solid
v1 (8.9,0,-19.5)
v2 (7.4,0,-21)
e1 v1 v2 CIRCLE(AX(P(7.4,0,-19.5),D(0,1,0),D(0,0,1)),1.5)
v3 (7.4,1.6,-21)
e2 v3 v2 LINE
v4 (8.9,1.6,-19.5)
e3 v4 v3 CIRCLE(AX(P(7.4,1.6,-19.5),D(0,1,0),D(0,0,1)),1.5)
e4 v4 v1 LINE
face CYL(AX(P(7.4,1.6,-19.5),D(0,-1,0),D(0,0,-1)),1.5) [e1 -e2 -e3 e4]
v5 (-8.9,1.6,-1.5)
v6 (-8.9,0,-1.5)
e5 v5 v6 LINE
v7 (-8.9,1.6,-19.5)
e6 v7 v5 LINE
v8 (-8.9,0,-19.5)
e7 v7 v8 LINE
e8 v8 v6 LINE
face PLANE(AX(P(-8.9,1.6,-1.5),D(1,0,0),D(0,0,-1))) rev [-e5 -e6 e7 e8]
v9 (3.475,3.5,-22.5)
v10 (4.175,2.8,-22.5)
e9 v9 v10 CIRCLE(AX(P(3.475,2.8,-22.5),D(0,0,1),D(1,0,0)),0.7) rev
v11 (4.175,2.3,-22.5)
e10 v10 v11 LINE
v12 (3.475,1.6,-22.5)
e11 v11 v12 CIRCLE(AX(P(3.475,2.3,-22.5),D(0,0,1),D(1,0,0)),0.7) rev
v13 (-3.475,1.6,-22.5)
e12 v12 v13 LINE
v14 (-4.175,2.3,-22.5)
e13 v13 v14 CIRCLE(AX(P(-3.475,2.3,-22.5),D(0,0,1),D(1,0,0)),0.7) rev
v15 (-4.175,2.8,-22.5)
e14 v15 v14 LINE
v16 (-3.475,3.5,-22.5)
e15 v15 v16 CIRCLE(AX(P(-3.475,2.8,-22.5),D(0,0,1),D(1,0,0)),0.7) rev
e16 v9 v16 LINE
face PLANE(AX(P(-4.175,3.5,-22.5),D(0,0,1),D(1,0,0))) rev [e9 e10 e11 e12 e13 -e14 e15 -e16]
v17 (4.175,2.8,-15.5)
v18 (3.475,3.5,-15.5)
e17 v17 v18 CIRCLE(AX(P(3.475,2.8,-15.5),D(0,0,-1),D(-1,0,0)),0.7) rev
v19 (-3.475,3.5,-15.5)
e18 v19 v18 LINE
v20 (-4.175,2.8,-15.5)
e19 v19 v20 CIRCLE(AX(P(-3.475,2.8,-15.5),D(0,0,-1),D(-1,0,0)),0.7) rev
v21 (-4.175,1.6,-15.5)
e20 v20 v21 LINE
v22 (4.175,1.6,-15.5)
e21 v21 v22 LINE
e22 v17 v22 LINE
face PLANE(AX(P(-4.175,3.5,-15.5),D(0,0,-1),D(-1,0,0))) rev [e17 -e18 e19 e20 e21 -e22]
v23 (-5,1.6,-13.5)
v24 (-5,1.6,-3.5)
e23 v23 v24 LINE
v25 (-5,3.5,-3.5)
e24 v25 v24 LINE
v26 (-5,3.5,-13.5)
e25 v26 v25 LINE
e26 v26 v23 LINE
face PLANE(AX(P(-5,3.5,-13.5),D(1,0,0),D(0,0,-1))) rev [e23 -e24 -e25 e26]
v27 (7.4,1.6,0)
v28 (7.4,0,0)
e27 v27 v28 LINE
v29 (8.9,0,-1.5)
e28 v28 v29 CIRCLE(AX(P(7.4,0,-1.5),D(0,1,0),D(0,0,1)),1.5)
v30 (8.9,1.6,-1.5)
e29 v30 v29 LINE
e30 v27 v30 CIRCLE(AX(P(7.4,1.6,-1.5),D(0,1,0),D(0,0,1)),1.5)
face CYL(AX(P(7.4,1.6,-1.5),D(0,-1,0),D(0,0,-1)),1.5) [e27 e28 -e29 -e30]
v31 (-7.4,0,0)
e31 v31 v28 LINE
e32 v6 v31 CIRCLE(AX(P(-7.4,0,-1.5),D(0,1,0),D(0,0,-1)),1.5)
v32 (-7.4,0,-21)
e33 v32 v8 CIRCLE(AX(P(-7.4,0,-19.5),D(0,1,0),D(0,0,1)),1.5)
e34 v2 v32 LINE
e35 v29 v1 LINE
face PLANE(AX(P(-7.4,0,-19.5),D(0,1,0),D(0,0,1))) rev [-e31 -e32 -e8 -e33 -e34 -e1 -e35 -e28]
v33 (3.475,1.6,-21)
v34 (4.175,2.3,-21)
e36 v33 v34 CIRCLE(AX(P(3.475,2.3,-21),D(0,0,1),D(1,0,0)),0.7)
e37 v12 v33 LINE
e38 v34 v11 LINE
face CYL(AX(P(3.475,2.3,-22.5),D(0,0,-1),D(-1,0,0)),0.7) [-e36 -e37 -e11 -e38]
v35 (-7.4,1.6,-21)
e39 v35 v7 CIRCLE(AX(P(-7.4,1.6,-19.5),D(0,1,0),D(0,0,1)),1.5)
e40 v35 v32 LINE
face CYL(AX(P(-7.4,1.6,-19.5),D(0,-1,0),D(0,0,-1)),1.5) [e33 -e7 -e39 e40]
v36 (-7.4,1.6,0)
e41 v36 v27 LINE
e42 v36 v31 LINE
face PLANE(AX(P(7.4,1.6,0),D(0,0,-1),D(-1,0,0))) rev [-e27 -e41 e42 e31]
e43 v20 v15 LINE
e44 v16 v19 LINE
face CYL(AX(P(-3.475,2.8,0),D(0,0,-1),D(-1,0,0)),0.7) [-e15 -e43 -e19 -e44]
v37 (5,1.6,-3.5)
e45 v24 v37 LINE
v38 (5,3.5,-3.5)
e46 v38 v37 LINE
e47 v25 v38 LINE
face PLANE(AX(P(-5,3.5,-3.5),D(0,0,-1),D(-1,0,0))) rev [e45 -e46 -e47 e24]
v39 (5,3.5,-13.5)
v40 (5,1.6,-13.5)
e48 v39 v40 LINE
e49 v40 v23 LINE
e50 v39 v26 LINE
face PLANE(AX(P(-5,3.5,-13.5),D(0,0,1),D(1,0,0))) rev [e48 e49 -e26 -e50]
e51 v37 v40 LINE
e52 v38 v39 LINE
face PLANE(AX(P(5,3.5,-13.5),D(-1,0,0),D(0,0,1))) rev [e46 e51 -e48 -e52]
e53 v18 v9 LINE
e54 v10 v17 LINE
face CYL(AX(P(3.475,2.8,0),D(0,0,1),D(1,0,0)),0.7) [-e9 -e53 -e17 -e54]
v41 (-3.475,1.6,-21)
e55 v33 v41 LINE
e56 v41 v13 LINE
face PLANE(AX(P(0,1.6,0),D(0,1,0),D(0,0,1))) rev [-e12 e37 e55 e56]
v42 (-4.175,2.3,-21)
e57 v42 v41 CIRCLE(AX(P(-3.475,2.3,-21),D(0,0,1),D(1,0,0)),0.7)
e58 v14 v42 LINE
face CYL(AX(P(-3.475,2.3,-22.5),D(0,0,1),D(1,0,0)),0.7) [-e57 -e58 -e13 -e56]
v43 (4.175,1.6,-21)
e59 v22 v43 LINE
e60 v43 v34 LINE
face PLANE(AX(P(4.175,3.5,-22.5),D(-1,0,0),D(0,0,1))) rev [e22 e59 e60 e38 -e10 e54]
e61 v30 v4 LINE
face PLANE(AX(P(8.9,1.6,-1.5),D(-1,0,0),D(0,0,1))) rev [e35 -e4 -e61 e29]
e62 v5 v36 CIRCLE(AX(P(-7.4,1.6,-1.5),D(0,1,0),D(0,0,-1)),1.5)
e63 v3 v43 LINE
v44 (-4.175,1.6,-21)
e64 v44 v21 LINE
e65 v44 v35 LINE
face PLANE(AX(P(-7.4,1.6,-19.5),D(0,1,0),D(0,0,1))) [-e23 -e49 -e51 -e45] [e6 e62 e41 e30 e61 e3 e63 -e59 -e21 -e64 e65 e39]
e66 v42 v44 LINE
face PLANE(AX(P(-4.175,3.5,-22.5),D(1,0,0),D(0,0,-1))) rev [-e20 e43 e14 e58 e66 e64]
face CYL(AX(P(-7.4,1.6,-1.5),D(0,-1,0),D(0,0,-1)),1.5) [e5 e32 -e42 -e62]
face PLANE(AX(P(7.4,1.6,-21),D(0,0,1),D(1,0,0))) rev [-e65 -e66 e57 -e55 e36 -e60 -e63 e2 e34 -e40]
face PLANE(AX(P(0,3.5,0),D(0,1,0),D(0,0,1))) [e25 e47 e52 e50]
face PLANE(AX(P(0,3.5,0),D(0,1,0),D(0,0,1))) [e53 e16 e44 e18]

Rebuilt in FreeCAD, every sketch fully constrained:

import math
import FreeCAD as App
import Part
import Sketcher

V = App.Vector
Q = App.Units.Quantity


def edges_at(feature, points):
    """Names of the edges that pass closest to the given points."""
    edges = feature.Shape.Edges
    near = lambda p: min(range(len(edges)), key=lambda i: edges[i].distToShape(Part.Vertex(*p))[0])
    return sorted({f"Edge{near(p) + 1}" for p in points})


def add_polygon(sketch, points):
    """Adds a closed chain of lines whose ends are joined by coincident constraints."""
    first, n = sketch.GeometryCount, len(points)
    for a, b in zip(points, points[1:] + points[:1]):
        sketch.addGeometry(Part.LineSegment(App.Vector(*a, 0), App.Vector(*b, 0)), False)
    for i in range(n):
        sketch.addConstraint(Sketcher.Constraint("Coincident", first + i, 2, first + (i + 1) % n, 1))

doc = App.newDocument("Part")
body = doc.addObject("PartDesign::Body", "Body")

# Sketch on XZ plane
sketch1 = body.newObject("Sketcher::SketchObject", "Sketch")
sketch1.AttachmentSupport = (doc.getObject("XZ_Plane"), [""])
sketch1.MapMode = "FlatFace"
sketch1.addGeometry([
    Part.LineSegment(V(-7.4, 0, 0), V(7.4, 0, 0)),  # 0
    Part.ArcOfCircle(Part.Circle(V(7.4, -1.5, 0), V(0, 0, 1), 1.5), math.radians(0), math.radians(90)),  # 1
    Part.LineSegment(V(8.9, -1.5, 0), V(8.9, -19.5, 0)),  # 2
    Part.ArcOfCircle(Part.Circle(V(7.4, -19.5, 0), V(0, 0, 1), 1.5), math.radians(-90), math.radians(0)),  # 3
    Part.LineSegment(V(7.4, -21, 0), V(-7.4, -21, 0)),  # 4
    Part.ArcOfCircle(Part.Circle(V(-7.4, -19.5, 0), V(0, 0, 1), 1.5), math.radians(180), math.radians(270)),  # 5
    Part.LineSegment(V(-8.9, -19.5, 0), V(-8.9, -1.5, 0)),  # 6
    Part.ArcOfCircle(Part.Circle(V(-7.4, -1.5, 0), V(0, 0, 1), 1.5), math.radians(90), math.radians(180)),  # 7
], False)
sketch1.addConstraint([
    Sketcher.Constraint("Tangent", 0, 2, 1, 2),
    Sketcher.Constraint("Tangent", 1, 1, 2, 1),
    Sketcher.Constraint("Tangent", 2, 2, 3, 2),
    Sketcher.Constraint("Tangent", 3, 1, 4, 1),
    Sketcher.Constraint("Tangent", 4, 2, 5, 2),
    Sketcher.Constraint("Tangent", 5, 1, 6, 1),
    Sketcher.Constraint("Tangent", 6, 2, 7, 2),
    Sketcher.Constraint("Tangent", 7, 1, 0, 1),
    Sketcher.Constraint("Horizontal", 0),
    Sketcher.Constraint("Vertical", 2),
    Sketcher.Constraint("Horizontal", 4),
    Sketcher.Constraint("Vertical", 6),
    Sketcher.Constraint("Equal", 1, 3),
    Sketcher.Constraint("Equal", 3, 5),
    Sketcher.Constraint("Equal", 5, 7),
    Sketcher.Constraint("Symmetric", 0, 2, 7, 1, -1, 1),
    Sketcher.Constraint("Radius", 1, Q("1.5 mm")),
    Sketcher.Constraint("DistanceY", 2, 2, 2, 1, Q("18 mm")),
    Sketcher.Constraint("DistanceX", 0, 1, 0, 2, Q("14.8 mm")),
])
pad1 = body.newObject("PartDesign::Pad", "Pad")
pad1.Profile = sketch1
pad1.Length = 1.6
pad1.Reversed = True

# Sketch on XZ plane
sketch2 = body.newObject("Sketcher::SketchObject", "Sketch001")
sketch2.AttachmentSupport = (doc.getObject("XZ_Plane"), [""])
sketch2.MapMode = "FlatFace"
sketch2.AttachmentOffset = App.Placement(V(0, 0, -1.6), App.Rotation())
add_polygon(sketch2, [(-4.175, -22.5), (-4.175, -15.5), (4.175, -15.5), (4.175, -22.5)])  # lines 0-3
add_polygon(sketch2, [(-5, -13.5), (-5, -3.5), (5, -3.5), (5, -13.5)])  # lines 4-7
sketch2.addConstraint([
    Sketcher.Constraint("Vertical", 0),
    Sketcher.Constraint("Horizontal", 1),
    Sketcher.Constraint("Vertical", 2),
    Sketcher.Constraint("Horizontal", 3),
    Sketcher.Constraint("Vertical", 4),
    Sketcher.Constraint("Horizontal", 5),
    Sketcher.Constraint("Vertical", 6),
    Sketcher.Constraint("Horizontal", 7),
    Sketcher.Constraint("Equal", 7, 4),
    Sketcher.Constraint("DistanceX", 5, 1, 5, 2, Q("10 mm")),
    Sketcher.Constraint("DistanceY", 0, 1, 0, 2, Q("7 mm")),
    Sketcher.Constraint("DistanceX", 4, 2, -1, 1, Q("5 mm")),
    Sketcher.Constraint("DistanceY", 0, 2, 4, 2, Q("12 mm")),
    Sketcher.Constraint("DistanceX", 1, 1, 1, 2, Q("8.35 mm")),
    Sketcher.Constraint("DistanceY", 0, 2, -1, 1, Q("15.5 mm")),
    Sketcher.Constraint("DistanceX", 0, 2, -1, 1, Q("4.175 mm")),
])
pad2 = body.newObject("PartDesign::Pad", "Pad001")
pad2.Profile = sketch2
pad2.Length = 1.9
pad2.Reversed = True
doc.recompute()

fillet = body.newObject("PartDesign::Fillet", "Fillet")
fillet.Base = (pad2, edges_at(pad2, [
    (-4.175, 1.6, -21.75),
    (4.175, 1.6, -21.75),
    (-4.175, 3.5, -19),
    (4.175, 3.5, -19),
]))
fillet.Radius = 0.7

doc.recompute()
